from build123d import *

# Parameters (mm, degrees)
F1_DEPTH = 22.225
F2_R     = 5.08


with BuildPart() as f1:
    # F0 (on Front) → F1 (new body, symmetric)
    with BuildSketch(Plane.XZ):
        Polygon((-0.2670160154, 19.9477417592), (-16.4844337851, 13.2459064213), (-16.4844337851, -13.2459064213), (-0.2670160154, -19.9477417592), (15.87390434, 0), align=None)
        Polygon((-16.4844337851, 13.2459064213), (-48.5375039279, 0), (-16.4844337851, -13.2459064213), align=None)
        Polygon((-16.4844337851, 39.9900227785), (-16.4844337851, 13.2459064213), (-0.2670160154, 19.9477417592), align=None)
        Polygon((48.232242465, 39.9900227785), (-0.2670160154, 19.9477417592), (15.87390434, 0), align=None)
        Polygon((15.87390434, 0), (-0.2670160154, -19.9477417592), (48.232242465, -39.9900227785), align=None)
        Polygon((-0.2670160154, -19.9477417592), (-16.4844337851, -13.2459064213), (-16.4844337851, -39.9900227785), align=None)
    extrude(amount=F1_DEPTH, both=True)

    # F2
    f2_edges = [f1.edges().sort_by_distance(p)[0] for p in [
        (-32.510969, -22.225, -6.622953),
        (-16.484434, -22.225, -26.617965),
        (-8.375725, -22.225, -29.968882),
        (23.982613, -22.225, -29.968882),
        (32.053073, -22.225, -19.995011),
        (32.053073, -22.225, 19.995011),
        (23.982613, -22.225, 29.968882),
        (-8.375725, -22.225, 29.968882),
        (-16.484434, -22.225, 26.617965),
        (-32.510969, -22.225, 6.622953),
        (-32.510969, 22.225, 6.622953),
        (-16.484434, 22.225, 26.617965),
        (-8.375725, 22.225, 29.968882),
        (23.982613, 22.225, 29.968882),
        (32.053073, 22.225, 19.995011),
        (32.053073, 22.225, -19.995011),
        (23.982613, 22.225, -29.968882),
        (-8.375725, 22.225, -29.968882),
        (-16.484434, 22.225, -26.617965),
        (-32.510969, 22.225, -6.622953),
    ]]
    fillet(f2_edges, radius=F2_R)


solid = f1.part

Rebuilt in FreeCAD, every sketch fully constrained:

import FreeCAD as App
import Part
import Sketcher

V = App.Vector
Q = App.Units.Quantity


def edges_at(feature, points):
    """Names of the edges that pass closest to the given points."""
    edges = feature.Shape.Edges
    near = lambda p: min(range(len(edges)), key=lambda i: edges[i].distToShape(Part.Vertex(*p))[0])
    return sorted({f"Edge{near(p) + 1}" for p in points})


def add_polygon(sketch, points):
    """Adds a closed chain of lines whose ends are joined by coincident constraints."""
    first, n = sketch.GeometryCount, len(points)
    for a, b in zip(points, points[1:] + points[:1]):
        sketch.addGeometry(Part.LineSegment(App.Vector(*a, 0), App.Vector(*b, 0)), False)
    for i in range(n):
        sketch.addConstraint(Sketcher.Constraint("Coincident", first + i, 2, first + (i + 1) % n, 1))

doc = App.newDocument("Part")
body = doc.addObject("PartDesign::Body", "Body")

# Sketch on XZ plane
sketch1 = body.newObject("Sketcher::SketchObject", "Sketch")
sketch1.AttachmentSupport = (doc.getObject("XZ_Plane"), [""])
sketch1.MapMode = "FlatFace"
add_polygon(sketch1, [(-16.484434, 13.245906), (-48.537504, 0), (-16.484434, -13.245906), (-16.484434, -39.990023), (-0.267016, -19.947742), (48.232242, -39.990023), (15.873904, 0), (48.232242, 39.990023), (-0.267016, 19.947742), (-16.484434, 39.990023)])  # lines 0-9
sketch1.addConstraint([
    Sketcher.Constraint("Vertical", 2),
    Sketcher.Constraint("Vertical", 9),
    Sketcher.Constraint("Symmetric", 4, 2, 6, 2, -1),
    Sketcher.Constraint("Symmetric", 3, 2, 7, 2, -1),
    Sketcher.Constraint("Symmetric", 2, 2, 8, 2, -1),
    Sketcher.Constraint("PointOnObject", 0, 2, -1),
    Sketcher.Constraint("PointOnObject", 5, 2, -1),
    Sketcher.Constraint("Parallel", 1, 4),
    Sketcher.Constraint("Parallel", 3, 6),
    Sketcher.Constraint("Parallel", 0, 7),
    Sketcher.Constraint("Horizontal", 2, 2, 4, 2),
    Sketcher.Constraint("Distance", 3, 25.781731),
    Sketcher.Constraint("Distance", 4, 52.477339),
    Sketcher.Constraint("Distance", 5, 51.44185),
    Sketcher.Constraint("DistanceY", 2, 2, 2, 1, 26.744116),
    Sketcher.Constraint("DistanceY", 3, 2, -1, 1, 19.947742),
    Sketcher.Constraint("DistanceX", 0, 2, -1, 1, 48.537504),
])
pad1 = body.newObject("PartDesign::Pad", "Pad")
pad1.Profile = sketch1
pad1.Length = Q("1.75 in")
pad1.Midplane = True
doc.recompute()

fillet = body.newObject("PartDesign::Fillet", "Fillet")
fillet.Base = (pad1, edges_at(pad1, [
    (-32.511, -22.225, -6.623),
    (-16.484, -22.225, -26.618),
    (-8.376, -22.225, -29.969),
    (23.983, -22.225, -29.969),
    (32.053, -22.225, -19.995),
    (32.053, -22.225, 19.995),
    (23.983, -22.225, 29.969),
    (-8.376, -22.225, 29.969),
    (-16.484, -22.225, 26.618),
    (-32.511, -22.225, 6.623),
    (-32.511, 22.225, 6.623),
    (-16.484, 22.225, 26.618),
    (-8.376, 22.225, 29.969),
    (23.983, 22.225, 29.969),
    (32.053, 22.225, 19.995),
    (32.053, 22.225, -19.995),
    (23.983, 22.225, -29.969),
    (-8.376, 22.225, -29.969),
    (-16.484, 22.225, -26.618),
    (-32.511, 22.225, -6.623),
]))
fillet.Radius = Q("0.2 in")

doc.recompute()
